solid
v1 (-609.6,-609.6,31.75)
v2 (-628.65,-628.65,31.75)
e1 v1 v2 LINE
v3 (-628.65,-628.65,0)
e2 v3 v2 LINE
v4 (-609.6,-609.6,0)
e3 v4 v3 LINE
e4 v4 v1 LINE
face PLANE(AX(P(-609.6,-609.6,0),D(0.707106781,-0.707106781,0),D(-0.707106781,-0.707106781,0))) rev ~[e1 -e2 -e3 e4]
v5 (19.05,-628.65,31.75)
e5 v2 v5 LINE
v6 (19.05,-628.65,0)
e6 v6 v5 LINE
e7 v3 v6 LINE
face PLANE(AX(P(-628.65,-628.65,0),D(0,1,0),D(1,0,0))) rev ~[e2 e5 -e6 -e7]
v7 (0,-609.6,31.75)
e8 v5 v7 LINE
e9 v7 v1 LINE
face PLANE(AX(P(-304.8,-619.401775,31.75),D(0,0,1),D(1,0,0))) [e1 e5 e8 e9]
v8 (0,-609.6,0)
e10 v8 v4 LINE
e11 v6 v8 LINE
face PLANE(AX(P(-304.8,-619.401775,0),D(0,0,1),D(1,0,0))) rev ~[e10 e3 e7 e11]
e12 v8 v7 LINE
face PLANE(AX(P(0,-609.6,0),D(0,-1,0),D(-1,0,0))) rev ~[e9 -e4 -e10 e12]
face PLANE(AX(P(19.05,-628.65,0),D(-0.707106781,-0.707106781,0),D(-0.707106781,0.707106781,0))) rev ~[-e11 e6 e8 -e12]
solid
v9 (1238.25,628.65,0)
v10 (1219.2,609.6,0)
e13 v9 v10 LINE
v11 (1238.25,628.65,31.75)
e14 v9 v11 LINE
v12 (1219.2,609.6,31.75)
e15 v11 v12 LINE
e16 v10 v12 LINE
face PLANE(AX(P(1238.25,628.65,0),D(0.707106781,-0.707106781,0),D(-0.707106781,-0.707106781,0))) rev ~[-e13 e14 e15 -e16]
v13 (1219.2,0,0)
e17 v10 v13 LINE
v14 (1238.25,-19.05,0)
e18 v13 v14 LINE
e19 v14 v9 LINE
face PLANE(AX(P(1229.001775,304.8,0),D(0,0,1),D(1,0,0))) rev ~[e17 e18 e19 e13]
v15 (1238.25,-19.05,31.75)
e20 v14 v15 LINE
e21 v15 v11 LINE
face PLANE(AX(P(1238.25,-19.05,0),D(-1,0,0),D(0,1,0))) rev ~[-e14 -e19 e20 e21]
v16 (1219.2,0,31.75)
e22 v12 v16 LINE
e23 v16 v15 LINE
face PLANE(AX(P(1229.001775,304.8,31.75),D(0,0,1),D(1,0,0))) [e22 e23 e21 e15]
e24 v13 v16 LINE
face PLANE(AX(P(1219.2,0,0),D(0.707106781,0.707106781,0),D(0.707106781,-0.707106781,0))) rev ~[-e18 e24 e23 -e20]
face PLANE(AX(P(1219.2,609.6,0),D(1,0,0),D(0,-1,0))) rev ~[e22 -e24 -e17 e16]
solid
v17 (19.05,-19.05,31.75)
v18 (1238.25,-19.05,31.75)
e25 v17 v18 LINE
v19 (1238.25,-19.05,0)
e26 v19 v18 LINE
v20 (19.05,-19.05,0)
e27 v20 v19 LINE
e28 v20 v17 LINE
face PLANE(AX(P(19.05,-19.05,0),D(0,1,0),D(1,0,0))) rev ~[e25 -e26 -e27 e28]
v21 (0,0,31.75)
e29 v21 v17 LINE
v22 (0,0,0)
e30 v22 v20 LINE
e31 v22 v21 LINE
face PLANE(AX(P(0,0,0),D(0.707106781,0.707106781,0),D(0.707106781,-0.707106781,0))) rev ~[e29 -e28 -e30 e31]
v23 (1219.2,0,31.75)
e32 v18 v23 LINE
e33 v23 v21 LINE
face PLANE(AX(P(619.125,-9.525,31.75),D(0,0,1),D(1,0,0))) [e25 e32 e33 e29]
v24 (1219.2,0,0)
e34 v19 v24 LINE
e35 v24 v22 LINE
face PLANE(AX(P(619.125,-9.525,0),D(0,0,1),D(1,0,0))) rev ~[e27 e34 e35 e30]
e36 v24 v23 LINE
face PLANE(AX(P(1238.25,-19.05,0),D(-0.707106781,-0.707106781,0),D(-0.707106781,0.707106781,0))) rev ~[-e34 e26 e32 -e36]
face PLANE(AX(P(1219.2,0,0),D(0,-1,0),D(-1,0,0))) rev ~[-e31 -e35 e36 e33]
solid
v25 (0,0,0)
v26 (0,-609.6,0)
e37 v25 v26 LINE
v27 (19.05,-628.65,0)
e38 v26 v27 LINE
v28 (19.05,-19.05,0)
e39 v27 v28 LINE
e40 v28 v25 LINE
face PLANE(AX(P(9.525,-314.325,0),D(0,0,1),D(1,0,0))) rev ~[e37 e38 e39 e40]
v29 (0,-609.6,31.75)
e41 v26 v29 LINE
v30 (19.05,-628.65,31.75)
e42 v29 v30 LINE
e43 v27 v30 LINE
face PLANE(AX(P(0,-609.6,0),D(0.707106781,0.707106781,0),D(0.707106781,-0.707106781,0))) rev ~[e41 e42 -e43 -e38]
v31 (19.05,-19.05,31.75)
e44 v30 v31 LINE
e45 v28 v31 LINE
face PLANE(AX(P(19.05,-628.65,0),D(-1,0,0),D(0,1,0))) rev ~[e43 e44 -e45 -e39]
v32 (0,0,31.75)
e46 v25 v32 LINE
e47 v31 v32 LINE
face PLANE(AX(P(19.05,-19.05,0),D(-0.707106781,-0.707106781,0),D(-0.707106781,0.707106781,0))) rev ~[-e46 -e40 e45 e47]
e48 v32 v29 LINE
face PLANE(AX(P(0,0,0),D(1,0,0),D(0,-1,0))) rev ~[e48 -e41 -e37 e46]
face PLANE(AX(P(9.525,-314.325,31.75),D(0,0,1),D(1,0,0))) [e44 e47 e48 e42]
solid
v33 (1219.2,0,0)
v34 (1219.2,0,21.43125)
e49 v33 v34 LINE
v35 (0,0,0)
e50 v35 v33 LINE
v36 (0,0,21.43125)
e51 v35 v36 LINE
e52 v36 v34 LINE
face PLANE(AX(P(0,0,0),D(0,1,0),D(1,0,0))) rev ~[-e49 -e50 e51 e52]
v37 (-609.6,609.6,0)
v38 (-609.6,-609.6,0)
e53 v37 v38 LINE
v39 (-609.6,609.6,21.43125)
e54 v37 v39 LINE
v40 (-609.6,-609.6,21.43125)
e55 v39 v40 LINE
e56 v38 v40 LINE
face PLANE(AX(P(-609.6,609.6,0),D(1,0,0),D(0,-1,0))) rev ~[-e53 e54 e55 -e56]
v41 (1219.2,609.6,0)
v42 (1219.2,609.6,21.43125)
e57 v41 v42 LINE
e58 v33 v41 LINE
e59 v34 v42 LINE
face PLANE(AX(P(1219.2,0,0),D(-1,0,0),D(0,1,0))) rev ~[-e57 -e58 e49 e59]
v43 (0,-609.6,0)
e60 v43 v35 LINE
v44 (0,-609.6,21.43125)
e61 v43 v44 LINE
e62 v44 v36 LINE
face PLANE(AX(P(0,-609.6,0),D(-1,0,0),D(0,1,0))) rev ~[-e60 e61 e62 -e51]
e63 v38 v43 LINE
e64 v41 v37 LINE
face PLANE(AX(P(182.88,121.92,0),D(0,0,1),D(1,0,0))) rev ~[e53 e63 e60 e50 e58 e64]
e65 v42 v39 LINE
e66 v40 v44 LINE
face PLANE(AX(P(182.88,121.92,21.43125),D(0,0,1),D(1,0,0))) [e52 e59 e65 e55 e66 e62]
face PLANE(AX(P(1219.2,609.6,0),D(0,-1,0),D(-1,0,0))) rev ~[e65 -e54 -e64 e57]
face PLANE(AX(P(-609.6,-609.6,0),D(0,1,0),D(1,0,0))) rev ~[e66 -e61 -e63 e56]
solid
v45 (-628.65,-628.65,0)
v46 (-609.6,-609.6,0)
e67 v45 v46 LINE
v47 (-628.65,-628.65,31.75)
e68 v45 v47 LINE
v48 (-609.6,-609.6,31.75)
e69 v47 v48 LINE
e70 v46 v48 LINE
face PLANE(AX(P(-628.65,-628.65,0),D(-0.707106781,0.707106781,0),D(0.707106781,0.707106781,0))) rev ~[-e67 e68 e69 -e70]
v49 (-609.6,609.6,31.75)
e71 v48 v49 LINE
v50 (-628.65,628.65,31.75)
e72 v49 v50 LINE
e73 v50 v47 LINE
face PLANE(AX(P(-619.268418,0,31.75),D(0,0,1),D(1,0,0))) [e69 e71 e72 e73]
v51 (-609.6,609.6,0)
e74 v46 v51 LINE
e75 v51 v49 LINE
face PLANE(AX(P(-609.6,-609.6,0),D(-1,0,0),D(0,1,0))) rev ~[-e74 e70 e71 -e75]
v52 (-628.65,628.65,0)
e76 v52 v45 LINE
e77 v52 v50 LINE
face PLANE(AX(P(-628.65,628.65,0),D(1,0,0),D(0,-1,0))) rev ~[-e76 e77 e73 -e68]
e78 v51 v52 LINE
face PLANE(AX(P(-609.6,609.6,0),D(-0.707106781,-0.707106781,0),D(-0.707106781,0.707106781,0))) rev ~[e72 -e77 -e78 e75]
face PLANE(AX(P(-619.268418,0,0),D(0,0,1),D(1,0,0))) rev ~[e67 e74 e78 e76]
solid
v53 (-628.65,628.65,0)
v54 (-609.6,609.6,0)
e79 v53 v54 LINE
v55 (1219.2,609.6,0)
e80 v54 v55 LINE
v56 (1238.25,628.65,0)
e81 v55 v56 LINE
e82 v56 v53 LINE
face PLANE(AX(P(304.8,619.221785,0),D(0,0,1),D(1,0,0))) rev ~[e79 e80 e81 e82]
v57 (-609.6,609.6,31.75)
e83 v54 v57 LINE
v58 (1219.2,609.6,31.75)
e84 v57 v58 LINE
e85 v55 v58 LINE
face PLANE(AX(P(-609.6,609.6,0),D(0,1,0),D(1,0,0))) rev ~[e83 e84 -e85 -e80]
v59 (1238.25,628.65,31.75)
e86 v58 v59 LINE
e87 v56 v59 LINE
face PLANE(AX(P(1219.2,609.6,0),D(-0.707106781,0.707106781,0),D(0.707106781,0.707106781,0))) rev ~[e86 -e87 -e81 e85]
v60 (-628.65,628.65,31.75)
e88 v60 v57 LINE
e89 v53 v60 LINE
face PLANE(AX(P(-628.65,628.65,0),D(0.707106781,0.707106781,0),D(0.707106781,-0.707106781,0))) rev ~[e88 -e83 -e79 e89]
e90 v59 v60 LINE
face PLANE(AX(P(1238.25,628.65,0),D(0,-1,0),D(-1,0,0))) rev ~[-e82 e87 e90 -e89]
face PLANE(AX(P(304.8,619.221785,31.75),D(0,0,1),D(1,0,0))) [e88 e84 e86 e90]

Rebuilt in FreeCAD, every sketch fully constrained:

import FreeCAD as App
import Part
import Sketcher
Q = App.Units.Quantity

doc = App.newDocument("Part")
body = doc.addObject("PartDesign::Body", "Body")

# Sketch on XY plane
sketch1 = body.newObject("Sketcher::SketchObject", "Sketch")
sketch1.AttachmentSupport = (doc.getObject("XY_Plane"), [""])
sketch1.MapMode = "FlatFace"
sketch1.addGeometry([
    Part.LineSegment(App.Vector(-610, 610, 0), App.Vector(-610, -610, 0)),  # 0
    Part.LineSegment(App.Vector(-610, -610, 0), App.Vector(0, -610, 0)),  # 1
    Part.LineSegment(App.Vector(0, -610, 0), App.Vector(0, 0, 0)),  # 2
    Part.LineSegment(App.Vector(0, 0, 0), App.Vector(1219, 0, 0)),  # 3
    Part.LineSegment(App.Vector(1219, 0, 0), App.Vector(1219, 610, 0)),  # 4
    Part.LineSegment(App.Vector(1219, 610, 0), App.Vector(-610, 610, 0)),  # 5
], False)
sketch1.addConstraint([
    Sketcher.Constraint("Coincident", 0, 2, 1, 1),
    Sketcher.Constraint("Coincident", 1, 2, 2, 1),
    Sketcher.Constraint("Coincident", 2, 2, 3, 1),
    Sketcher.Constraint("Coincident", 3, 2, 4, 1),
    Sketcher.Constraint("Coincident", 4, 2, 5, 1),
    Sketcher.Constraint("Coincident", 5, 2, 0, 1),
    Sketcher.Constraint("Vertical", 0),
    Sketcher.Constraint("Horizontal", 1),
    Sketcher.Constraint("Vertical", 2),
    Sketcher.Constraint("Horizontal", 3),
    Sketcher.Constraint("Vertical", 4),
    Sketcher.Constraint("Horizontal", 5),
    Sketcher.Constraint("Coincident", 2, 2, -1, 1),
    Sketcher.Constraint("Equal", 3, 0),
    Sketcher.Constraint("Equal", 1, 2),
    Sketcher.Constraint("Equal", 2, 4),
    Sketcher.Constraint("DistanceX", 1, 1, 1, 2, Q("24 in")),
])
pad1 = body.newObject("PartDesign::Pad", "Pad")
pad1.Profile = sketch1
pad1.Length = Q("0.84375 in")
body2 = doc.addObject("PartDesign::Body", "Body001")

# Sketch on XY plane
sketch2 = body2.newObject("Sketcher::SketchObject", "Sketch001")
sketch2.AttachmentSupport = (doc.getObject("XY_Plane001"), [""])
sketch2.MapMode = "FlatFace"
sketch2.addGeometry([
    Part.LineSegment(App.Vector(-629, -629, 0), App.Vector(-610, -610, 0)),
    Part.LineSegment(App.Vector(-610, -610, 0), App.Vector(-610, 610, 0)),
    Part.LineSegment(App.Vector(-610, 610, 0), App.Vector(-629, 629, 0)),
    Part.LineSegment(App.Vector(-629, 629, 0), App.Vector(-629, -629, 0)),
], False)
sketch2.addConstraint([
    Sketcher.Constraint("Coincident", 0, 2, 1, 1),
    Sketcher.Constraint("Coincident", 1, 2, 2, 1),
    Sketcher.Constraint("Coincident", 2, 2, 3, 1),
    Sketcher.Constraint("Coincident", 3, 2, 0, 1),
    Sketcher.Constraint("Vertical", 1),
    Sketcher.Constraint("Vertical", 3),
    Sketcher.Constraint("Perpendicular", 0, 2),
    Sketcher.Constraint("Equal", 0, 2),
    Sketcher.Constraint("DistanceY", 1, 1, 1, 2, Q("48 in")),
    Sketcher.Constraint("DistanceY", 3, 2, 3, 1, Q("49.5 in")),
    Sketcher.Constraint("DistanceX", 0, 2, -1, 1, Q("24 in")),
    Sketcher.Constraint("DistanceY", 0, 2, -1, 1, Q("24 in")),
])
pad2 = body2.newObject("PartDesign::Pad", "Pad001")
pad2.Profile = sketch2
pad2.Length = Q("1.25 in")
body3 = doc.addObject("PartDesign::Body", "Body002")

# Sketch on XY plane
sketch3 = body3.newObject("Sketcher::SketchObject", "Sketch002")
sketch3.AttachmentSupport = (doc.getObject("XY_Plane002"), [""])
sketch3.MapMode = "FlatFace"
sketch3.addGeometry([
    Part.LineSegment(App.Vector(0, -610, 0), App.Vector(-610, -610, 0)),
    Part.LineSegment(App.Vector(-610, -610, 0), App.Vector(-629, -629, 0)),
    Part.LineSegment(App.Vector(-629, -629, 0), App.Vector(19, -629, 0)),
    Part.LineSegment(App.Vector(19, -629, 0), App.Vector(0, -610, 0)),
], False)
sketch3.addConstraint([
    Sketcher.Constraint("Coincident", 0, 2, 1, 1),
    Sketcher.Constraint("Coincident", 1, 2, 2, 1),
    Sketcher.Constraint("Coincident", 2, 2, 3, 1),
    Sketcher.Constraint("Coincident", 3, 2, 0, 1),
    Sketcher.Constraint("Horizontal", 0),
    Sketcher.Constraint("Horizontal", 2),
    Sketcher.Constraint("PointOnObject", 3, 2, -2),
    Sketcher.Constraint("Perpendicular", 1, 3),
    Sketcher.Constraint("Equal", 1, 3),
    Sketcher.Constraint("DistanceX", 0, 2, 0, 1, Q("24 in")),
    Sketcher.Constraint("DistanceX", 2, 1, 2, 2, Q("25.5 in")),
    Sketcher.Constraint("DistanceY", 0, 2, -1, 1, Q("24 in")),
])
pad3 = body3.newObject("PartDesign::Pad", "Pad002")
pad3.Profile = sketch3
pad3.Length = Q("1.25 in")
body4 = doc.addObject("PartDesign::Body", "Body003")

# Sketch on XY plane
sketch4 = body4.newObject("Sketcher::SketchObject", "Sketch003")
sketch4.AttachmentSupport = (doc.getObject("XY_Plane003"), [""])
sketch4.MapMode = "FlatFace"
sketch4.addGeometry([
    Part.LineSegment(App.Vector(0, 0, 0), App.Vector(0, -610, 0)),
    Part.LineSegment(App.Vector(0, -610, 0), App.Vector(19, -629, 0)),
    Part.LineSegment(App.Vector(19, -629, 0), App.Vector(19, -19, 0)),
    Part.LineSegment(App.Vector(19, -19, 0), App.Vector(0, 0, 0)),
], False)
sketch4.addConstraint([
    Sketcher.Constraint("Coincident", 0, 2, 1, 1),
    Sketcher.Constraint("Coincident", 1, 2, 2, 1),
    Sketcher.Constraint("Coincident", 2, 2, 3, 1),
    Sketcher.Constraint("Coincident", 3, 2, 0, 1),
    Sketcher.Constraint("Vertical", 0),
    Sketcher.Constraint("Vertical", 2),
    Sketcher.Constraint("Coincident", 3, 2, -1, 1),
    Sketcher.Constraint("Parallel", 1, 3),
    Sketcher.Constraint("DistanceY", 0, 2, 0, 1, Q("24 in")),
    Sketcher.Constraint("Angle", 1, Q("-45 deg")),
    Sketcher.Constraint("DistanceX", -1, 1, 1, 2, Q("0.75 in")),
])
pad4 = body4.newObject("PartDesign::Pad", "Pad003")
pad4.Profile = sketch4
pad4.Length = Q("1.25 in")
body5 = doc.addObject("PartDesign::Body", "Body004")

# Sketch on XY plane
sketch5 = body5.newObject("Sketcher::SketchObject", "Sketch004")
sketch5.AttachmentSupport = (doc.getObject("XY_Plane004"), [""])
sketch5.MapMode = "FlatFace"
sketch5.addGeometry([
    Part.LineSegment(App.Vector(1219, 0, 0), App.Vector(0, 0, 0)),
    Part.LineSegment(App.Vector(0, 0, 0), App.Vector(19, -19, 0)),
    Part.LineSegment(App.Vector(19, -19, 0), App.Vector(1238, -19, 0)),
    Part.LineSegment(App.Vector(1238, -19, 0), App.Vector(1219, 0, 0)),
], False)
sketch5.addConstraint([
    Sketcher.Constraint("Coincident", 0, 2, 1, 1),
    Sketcher.Constraint("Coincident", 1, 2, 2, 1),
    Sketcher.Constraint("Coincident", 2, 2, 3, 1),
    Sketcher.Constraint("Coincident", 3, 2, 0, 1),
    Sketcher.Constraint("Horizontal", 0),
    Sketcher.Constraint("Horizontal", 2),
    Sketcher.Constraint("Coincident", 0, 2, -1, 1),
    Sketcher.Constraint("Parallel", 1, 3),
    Sketcher.Constraint("DistanceX", 0, 2, 0, 1, Q("48 in")),
    Sketcher.Constraint("Angle", 1, Q("-45 deg")),
    Sketcher.Constraint("DistanceX", -1, 1, 1, 2, Q("0.75 in")),
])
pad5 = body5.newObject("PartDesign::Pad", "Pad004")
pad5.Profile = sketch5
pad5.Length = Q("1.25 in")
body6 = doc.addObject("PartDesign::Body", "Body005")

# Sketch on XY plane
sketch6 = body6.newObject("Sketcher::SketchObject", "Sketch005")
sketch6.AttachmentSupport = (doc.getObject("XY_Plane005"), [""])
sketch6.MapMode = "FlatFace"
sketch6.addGeometry([
    Part.LineSegment(App.Vector(1238, 629, 0), App.Vector(1219, 610, 0)),
    Part.LineSegment(App.Vector(1219, 610, 0), App.Vector(1219, 0, 0)),
    Part.LineSegment(App.Vector(1219, 0, 0), App.Vector(1238, -19, 0)),
    Part.LineSegment(App.Vector(1238, -19, 0), App.Vector(1238, 629, 0)),
], False)
sketch6.addConstraint([
    Sketcher.Constraint("Coincident", 0, 2, 1, 1),
    Sketcher.Constraint("Coincident", 1, 2, 2, 1),
    Sketcher.Constraint("Coincident", 2, 2, 3, 1),
    Sketcher.Constraint("Coincident", 3, 2, 0, 1),
    Sketcher.Constraint("Vertical", 1),
    Sketcher.Constraint("Vertical", 3),
    Sketcher.Constraint("PointOnObject", 1, 2, -1),
    Sketcher.Constraint("Perpendicular", 0, 2),
    Sketcher.Constraint("Equal", 0, 2),
    Sketcher.Constraint("DistanceY", 1, 2, 1, 1, Q("24 in")),
    Sketcher.Constraint("DistanceY", 3, 1, 3, 2, Q("25.5 in")),
    Sketcher.Constraint("DistanceX", -1, 1, 0, 2, Q("48 in")),
])
pad6 = body6.newObject("PartDesign::Pad", "Pad005")
pad6.Profile = sketch6
pad6.Length = Q("1.25 in")
body7 = doc.addObject("PartDesign::Body", "Body006")

# Sketch on XY plane
sketch7 = body7.newObject("Sketcher::SketchObject", "Sketch006")
sketch7.AttachmentSupport = (doc.getObject("XY_Plane006"), [""])
sketch7.MapMode = "FlatFace"
sketch7.addGeometry([
    Part.LineSegment(App.Vector(-629, 629, 0), App.Vector(-610, 610, 0)),
    Part.LineSegment(App.Vector(-610, 610, 0), App.Vector(1219, 610, 0)),
    Part.LineSegment(App.Vector(1219, 610, 0), App.Vector(1238, 629, 0)),
    Part.LineSegment(App.Vector(1238, 629, 0), App.Vector(-629, 629, 0)),
], False)
sketch7.addConstraint([
    Sketcher.Constraint("Coincident", 0, 2, 1, 1),
    Sketcher.Constraint("Coincident", 1, 2, 2, 1),
    Sketcher.Constraint("Coincident", 2, 2, 3, 1),
    Sketcher.Constraint("Coincident", 3, 2, 0, 1),
    Sketcher.Constraint("Horizontal", 1),
    Sketcher.Constraint("Horizontal", 3),
    Sketcher.Constraint("Perpendicular", 0, 2),
    Sketcher.Constraint("Equal", 0, 2),
    Sketcher.Constraint("DistanceX", 1, 1, 1, 2, Q("72 in")),
    Sketcher.Constraint("DistanceX", 3, 2, 3, 1, Q("73.5 in")),
    Sketcher.Constraint("DistanceX", 0, 2, -1, 1, Q("24 in")),
    Sketcher.Constraint("DistanceY", -1, 1, 0, 2, Q("24 in")),
])
pad7 = body7.newObject("PartDesign::Pad", "Pad006")
pad7.Profile = sketch7
pad7.Length = Q("1.25 in")

doc.recompute()
